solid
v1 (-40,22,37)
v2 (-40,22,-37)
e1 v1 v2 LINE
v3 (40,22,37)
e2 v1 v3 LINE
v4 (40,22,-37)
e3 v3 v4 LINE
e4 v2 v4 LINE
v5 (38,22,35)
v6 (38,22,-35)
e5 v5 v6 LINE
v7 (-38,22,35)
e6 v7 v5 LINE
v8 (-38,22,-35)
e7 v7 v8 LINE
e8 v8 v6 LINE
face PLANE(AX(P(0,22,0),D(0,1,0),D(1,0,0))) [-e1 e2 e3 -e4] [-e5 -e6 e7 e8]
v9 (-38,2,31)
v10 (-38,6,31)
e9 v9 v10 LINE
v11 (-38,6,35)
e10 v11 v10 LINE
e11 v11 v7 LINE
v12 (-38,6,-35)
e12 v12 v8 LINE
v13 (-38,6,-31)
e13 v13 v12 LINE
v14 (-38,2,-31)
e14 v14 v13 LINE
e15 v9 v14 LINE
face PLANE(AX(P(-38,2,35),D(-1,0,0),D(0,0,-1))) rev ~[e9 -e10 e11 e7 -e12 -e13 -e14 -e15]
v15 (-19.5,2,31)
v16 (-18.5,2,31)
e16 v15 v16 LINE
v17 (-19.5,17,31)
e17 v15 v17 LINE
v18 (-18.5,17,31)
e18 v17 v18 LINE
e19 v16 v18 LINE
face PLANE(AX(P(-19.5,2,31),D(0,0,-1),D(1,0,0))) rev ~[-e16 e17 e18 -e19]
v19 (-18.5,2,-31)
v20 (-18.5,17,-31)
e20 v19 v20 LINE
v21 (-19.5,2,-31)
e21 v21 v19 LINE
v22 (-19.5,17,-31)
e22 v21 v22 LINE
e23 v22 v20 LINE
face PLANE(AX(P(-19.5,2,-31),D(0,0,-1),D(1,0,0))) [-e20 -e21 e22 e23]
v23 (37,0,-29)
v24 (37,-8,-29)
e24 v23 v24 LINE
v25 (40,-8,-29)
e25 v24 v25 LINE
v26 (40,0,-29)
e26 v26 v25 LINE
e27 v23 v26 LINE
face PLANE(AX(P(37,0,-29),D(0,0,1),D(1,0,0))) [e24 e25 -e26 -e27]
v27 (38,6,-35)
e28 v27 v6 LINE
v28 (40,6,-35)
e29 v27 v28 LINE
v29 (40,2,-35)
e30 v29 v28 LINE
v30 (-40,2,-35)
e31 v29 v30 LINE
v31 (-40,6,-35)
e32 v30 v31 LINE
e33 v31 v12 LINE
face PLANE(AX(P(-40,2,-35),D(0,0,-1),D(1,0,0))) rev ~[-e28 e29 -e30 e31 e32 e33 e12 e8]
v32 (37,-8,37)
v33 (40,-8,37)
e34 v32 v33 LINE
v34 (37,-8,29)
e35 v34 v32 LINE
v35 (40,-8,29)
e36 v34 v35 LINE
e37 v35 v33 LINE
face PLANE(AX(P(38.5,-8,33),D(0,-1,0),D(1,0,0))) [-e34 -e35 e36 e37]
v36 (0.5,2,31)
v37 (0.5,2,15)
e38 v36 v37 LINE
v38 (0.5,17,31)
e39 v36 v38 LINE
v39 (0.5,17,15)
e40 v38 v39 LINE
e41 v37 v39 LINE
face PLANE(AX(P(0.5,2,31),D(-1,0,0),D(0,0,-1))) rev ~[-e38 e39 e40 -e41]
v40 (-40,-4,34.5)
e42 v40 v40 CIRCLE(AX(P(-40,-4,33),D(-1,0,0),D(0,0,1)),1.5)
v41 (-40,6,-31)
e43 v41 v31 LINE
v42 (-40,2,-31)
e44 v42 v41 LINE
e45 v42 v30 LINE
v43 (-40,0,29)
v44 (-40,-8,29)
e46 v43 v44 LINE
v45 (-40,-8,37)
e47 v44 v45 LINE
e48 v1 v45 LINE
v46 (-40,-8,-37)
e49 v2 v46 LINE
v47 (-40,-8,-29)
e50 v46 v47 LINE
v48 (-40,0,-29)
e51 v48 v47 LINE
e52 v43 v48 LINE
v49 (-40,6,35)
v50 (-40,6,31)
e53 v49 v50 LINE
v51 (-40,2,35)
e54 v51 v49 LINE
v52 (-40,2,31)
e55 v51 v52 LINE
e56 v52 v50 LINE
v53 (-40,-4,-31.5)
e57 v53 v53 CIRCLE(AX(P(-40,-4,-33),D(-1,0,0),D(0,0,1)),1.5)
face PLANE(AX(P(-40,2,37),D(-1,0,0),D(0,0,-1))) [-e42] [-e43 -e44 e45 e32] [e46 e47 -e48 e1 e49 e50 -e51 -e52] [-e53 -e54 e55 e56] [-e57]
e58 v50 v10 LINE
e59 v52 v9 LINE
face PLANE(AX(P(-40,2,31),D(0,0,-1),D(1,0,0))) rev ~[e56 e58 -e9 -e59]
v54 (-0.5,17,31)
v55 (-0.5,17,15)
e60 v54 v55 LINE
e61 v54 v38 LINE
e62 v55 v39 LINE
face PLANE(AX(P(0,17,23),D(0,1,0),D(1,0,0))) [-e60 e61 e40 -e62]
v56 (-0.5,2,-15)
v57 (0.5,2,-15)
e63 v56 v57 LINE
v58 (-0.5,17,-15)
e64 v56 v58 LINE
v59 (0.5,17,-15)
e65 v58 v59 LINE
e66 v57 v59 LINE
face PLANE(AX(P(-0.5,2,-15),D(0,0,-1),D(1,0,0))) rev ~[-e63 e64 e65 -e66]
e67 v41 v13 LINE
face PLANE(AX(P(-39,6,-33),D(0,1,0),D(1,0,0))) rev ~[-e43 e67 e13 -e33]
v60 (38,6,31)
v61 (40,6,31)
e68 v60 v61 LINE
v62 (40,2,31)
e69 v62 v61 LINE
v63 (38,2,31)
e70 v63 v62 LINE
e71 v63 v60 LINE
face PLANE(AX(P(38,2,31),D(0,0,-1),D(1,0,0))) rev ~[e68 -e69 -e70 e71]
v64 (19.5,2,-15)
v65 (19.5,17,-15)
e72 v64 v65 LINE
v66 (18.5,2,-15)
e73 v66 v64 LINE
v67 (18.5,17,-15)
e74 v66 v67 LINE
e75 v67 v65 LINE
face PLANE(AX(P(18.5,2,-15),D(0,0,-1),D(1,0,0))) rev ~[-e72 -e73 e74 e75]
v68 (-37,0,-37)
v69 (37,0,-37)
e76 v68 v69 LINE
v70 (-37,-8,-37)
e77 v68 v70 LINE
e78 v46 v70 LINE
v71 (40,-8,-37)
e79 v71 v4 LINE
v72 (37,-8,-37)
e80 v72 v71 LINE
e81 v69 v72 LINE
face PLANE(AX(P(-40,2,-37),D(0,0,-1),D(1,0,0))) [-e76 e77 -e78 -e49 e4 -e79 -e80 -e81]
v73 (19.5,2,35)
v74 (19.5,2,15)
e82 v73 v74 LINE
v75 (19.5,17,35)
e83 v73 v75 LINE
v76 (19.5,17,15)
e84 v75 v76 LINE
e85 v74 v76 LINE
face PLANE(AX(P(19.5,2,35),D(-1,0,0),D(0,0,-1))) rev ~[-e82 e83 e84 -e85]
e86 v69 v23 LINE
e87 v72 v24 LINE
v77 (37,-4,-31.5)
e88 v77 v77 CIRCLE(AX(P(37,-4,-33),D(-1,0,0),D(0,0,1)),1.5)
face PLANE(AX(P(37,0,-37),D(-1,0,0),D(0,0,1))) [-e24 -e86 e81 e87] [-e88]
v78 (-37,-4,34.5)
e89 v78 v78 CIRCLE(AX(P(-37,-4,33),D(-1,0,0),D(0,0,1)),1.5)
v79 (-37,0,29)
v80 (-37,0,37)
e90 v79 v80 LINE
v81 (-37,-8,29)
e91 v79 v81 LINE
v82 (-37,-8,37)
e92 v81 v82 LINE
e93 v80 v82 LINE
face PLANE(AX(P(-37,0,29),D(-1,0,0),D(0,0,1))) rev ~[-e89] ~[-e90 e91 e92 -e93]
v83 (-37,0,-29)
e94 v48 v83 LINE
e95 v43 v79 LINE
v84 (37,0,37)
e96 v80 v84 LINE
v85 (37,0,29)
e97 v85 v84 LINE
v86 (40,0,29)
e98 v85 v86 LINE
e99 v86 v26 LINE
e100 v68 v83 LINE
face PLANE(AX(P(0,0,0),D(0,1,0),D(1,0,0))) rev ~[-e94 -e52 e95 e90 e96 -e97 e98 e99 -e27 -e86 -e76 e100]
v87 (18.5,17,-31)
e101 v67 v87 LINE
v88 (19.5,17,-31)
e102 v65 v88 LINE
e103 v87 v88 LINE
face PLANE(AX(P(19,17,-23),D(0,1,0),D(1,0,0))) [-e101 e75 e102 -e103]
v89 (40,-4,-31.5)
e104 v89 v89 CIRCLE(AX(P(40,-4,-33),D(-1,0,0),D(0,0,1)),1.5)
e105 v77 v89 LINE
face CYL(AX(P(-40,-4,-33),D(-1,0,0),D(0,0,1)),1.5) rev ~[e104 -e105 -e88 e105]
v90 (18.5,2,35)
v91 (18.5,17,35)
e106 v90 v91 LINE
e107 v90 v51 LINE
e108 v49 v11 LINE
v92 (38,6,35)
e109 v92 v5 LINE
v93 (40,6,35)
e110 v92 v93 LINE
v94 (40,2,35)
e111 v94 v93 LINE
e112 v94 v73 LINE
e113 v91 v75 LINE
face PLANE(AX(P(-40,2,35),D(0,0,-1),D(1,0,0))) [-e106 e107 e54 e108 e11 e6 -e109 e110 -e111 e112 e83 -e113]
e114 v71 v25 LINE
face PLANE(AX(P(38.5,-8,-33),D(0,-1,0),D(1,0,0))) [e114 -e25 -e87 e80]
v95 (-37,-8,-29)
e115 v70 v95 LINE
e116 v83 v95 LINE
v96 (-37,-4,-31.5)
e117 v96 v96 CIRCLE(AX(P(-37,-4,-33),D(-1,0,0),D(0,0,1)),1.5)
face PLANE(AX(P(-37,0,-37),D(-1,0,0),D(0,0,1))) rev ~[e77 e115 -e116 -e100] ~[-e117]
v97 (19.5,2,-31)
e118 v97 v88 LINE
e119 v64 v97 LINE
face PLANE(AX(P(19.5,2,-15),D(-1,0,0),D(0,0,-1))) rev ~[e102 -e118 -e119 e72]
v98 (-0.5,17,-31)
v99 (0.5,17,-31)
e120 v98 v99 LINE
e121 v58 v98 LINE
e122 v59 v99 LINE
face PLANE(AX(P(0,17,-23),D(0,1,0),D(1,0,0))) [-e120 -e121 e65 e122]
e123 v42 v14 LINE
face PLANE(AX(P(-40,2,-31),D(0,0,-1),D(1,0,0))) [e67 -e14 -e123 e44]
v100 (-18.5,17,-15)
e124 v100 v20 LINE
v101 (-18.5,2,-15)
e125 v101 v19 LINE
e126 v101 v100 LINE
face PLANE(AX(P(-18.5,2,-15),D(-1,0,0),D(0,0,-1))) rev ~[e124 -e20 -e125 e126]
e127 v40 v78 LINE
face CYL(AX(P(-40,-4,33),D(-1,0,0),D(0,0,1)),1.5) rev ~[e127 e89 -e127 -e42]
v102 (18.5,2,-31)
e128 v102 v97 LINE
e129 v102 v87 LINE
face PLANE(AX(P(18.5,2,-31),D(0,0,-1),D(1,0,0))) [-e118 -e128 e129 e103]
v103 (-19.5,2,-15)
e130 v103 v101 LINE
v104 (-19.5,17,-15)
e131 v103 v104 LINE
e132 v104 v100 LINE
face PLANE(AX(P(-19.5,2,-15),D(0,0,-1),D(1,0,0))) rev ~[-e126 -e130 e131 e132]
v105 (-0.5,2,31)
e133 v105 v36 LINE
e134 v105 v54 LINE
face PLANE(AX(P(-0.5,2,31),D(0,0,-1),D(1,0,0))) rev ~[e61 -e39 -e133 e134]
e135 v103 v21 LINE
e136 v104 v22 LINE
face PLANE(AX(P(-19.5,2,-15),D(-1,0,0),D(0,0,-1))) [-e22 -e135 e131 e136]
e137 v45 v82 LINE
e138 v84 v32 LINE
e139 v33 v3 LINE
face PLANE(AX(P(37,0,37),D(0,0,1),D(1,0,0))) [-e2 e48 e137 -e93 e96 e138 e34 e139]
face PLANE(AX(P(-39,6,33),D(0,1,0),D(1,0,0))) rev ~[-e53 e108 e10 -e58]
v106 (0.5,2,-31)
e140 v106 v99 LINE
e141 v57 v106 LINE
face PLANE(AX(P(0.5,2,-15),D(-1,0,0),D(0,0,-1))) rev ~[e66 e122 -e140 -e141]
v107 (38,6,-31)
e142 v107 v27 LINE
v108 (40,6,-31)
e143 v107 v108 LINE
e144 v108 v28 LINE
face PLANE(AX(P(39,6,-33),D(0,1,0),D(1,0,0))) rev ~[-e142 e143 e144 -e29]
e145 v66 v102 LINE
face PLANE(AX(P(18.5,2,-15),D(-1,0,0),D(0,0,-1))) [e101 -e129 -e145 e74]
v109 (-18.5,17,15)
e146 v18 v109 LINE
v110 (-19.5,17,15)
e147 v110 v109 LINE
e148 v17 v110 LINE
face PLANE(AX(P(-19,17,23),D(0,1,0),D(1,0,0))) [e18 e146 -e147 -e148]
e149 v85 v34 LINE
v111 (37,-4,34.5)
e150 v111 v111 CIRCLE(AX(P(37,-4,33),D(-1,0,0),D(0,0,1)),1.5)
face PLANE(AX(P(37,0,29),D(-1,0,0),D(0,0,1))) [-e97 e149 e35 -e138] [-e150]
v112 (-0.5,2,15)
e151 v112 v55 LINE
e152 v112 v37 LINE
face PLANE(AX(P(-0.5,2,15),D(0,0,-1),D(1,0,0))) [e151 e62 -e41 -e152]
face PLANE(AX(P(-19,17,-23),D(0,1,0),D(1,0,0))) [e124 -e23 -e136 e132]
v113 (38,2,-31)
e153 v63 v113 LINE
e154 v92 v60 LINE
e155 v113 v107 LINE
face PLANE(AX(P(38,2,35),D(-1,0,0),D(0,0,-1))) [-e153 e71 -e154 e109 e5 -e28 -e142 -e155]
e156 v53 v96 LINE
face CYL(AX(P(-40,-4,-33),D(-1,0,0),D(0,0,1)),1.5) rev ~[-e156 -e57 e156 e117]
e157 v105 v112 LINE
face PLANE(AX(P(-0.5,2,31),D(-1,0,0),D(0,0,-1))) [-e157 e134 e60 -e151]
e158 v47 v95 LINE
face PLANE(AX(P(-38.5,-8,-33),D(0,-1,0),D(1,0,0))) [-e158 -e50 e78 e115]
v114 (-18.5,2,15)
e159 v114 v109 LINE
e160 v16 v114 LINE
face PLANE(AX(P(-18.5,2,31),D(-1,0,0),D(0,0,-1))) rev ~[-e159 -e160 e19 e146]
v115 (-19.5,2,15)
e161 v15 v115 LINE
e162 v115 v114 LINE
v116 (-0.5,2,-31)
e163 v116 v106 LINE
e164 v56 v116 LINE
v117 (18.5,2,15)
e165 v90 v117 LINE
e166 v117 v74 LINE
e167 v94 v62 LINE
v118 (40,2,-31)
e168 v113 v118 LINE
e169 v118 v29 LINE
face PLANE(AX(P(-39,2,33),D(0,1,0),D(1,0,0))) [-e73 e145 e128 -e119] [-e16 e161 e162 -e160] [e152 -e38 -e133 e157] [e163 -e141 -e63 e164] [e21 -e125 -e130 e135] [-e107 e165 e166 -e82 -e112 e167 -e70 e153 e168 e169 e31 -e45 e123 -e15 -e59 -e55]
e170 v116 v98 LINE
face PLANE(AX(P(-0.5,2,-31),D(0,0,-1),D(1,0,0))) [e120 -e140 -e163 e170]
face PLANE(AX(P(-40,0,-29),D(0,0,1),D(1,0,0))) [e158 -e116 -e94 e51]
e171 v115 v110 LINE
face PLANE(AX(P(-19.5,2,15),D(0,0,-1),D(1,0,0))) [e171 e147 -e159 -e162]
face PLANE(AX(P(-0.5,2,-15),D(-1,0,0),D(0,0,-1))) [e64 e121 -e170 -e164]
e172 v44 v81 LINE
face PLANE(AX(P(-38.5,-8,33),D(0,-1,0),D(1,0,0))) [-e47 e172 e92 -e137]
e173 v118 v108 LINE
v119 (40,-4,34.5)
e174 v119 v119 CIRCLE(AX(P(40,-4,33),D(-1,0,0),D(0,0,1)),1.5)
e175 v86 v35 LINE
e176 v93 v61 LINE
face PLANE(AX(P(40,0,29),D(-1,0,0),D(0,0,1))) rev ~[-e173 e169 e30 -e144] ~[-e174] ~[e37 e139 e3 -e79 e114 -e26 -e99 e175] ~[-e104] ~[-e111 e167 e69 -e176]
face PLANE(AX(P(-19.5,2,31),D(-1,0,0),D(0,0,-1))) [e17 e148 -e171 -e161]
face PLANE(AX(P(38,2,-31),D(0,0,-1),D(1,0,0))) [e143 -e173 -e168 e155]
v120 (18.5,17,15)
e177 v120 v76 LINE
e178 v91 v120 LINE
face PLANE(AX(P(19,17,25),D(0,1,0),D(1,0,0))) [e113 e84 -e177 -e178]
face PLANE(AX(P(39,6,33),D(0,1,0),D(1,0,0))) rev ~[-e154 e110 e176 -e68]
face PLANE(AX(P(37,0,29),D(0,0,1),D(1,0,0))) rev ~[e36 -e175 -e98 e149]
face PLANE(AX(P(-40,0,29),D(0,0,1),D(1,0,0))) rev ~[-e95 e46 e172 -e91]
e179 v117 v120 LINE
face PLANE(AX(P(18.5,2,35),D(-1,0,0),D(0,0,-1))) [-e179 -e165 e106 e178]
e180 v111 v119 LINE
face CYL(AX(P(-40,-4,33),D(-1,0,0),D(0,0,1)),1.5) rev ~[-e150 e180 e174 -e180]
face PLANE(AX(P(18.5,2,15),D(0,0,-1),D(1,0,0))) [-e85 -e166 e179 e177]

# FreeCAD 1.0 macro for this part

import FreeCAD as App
import Part
import Sketcher

V = App.Vector


def add_polygon(sketch, points):
    """Adds a closed chain of lines whose ends are joined by coincident constraints."""
    first, n = sketch.GeometryCount, len(points)
    for a, b in zip(points, points[1:] + points[:1]):
        sketch.addGeometry(Part.LineSegment(App.Vector(*a, 0), App.Vector(*b, 0)), False)
    for i in range(n):
        sketch.addConstraint(Sketcher.Constraint("Coincident", first + i, 2, first + (i + 1) % n, 1))

doc = App.newDocument("Part")
body = doc.addObject("PartDesign::Body", "Body")

# Sketch on XZ plane
sketch1 = doc.addObject("Sketcher::SketchObject", "Sketch")
body.addObject(sketch1)
sketch1.AttachmentSupport = (doc.XZ_Plane, [""])
sketch1.MapMode = "FlatFace"
add_polygon(sketch1, [(-40, -37), (-40, 37), (40, 37), (40, -37)])  # lines 0-3
sketch1.addConstraint(Sketcher.Constraint("Vertical", 0))
sketch1.addConstraint(Sketcher.Constraint("Horizontal", 1))
sketch1.addConstraint(Sketcher.Constraint("Vertical", 2))
sketch1.addConstraint(Sketcher.Constraint("Horizontal", 3))
sketch1.addConstraint(Sketcher.Constraint("Symmetric", 0, 2, 2, 2, -1, 1))
sketch1.addConstraint(Sketcher.Constraint("DistanceX", 1, 1, 1, 2, 80.0))
sketch1.addConstraint(Sketcher.Constraint("DistanceY", 0, 1, 0, 2, 74.0))
pad1 = doc.addObject("PartDesign::Pad", "Pad")
body.addObject(pad1)
pad1.Profile = sketch1
pad1.Length = 2
pad1.Reversed = True

# Sketch on XZ plane
sketch2 = doc.addObject("Sketcher::SketchObject", "Sketch001")
body.addObject(sketch2)
sketch2.AttachmentSupport = (doc.XZ_Plane, [""])
sketch2.MapMode = "FlatFace"
sketch2.AttachmentOffset = App.Placement(V(0, 0, -2), App.Rotation())
add_polygon(sketch2, [(-40, -37), (-40, 37), (40, 37), (40, -37)])  # lines 0-3
add_polygon(sketch2, [(38, 35), (-38, 35), (-38, -35), (38, -35)])  # lines 4-7
sketch2.addConstraint(Sketcher.Constraint("Vertical", 0))
sketch2.addConstraint(Sketcher.Constraint("Horizontal", 1))
sketch2.addConstraint(Sketcher.Constraint("Vertical", 2))
sketch2.addConstraint(Sketcher.Constraint("Horizontal", 3))
sketch2.addConstraint(Sketcher.Constraint("Horizontal", 4))
sketch2.addConstraint(Sketcher.Constraint("Vertical", 5))
sketch2.addConstraint(Sketcher.Constraint("Horizontal", 6))
sketch2.addConstraint(Sketcher.Constraint("Vertical", 7))
sketch2.addConstraint(Sketcher.Constraint("Symmetric", 0, 2, 2, 2, -1, 1))
sketch2.addConstraint(Sketcher.Constraint("Symmetric", 4, 2, 6, 2, -1, 1))
sketch2.addConstraint(Sketcher.Constraint("DistanceX", 1, 1, 1, 2, 80.0))
sketch2.addConstraint(Sketcher.Constraint("DistanceX", 4, 2, 4, 1, 76.0))
sketch2.addConstraint(Sketcher.Constraint("DistanceY", 0, 1, 0, 2, 74.0))
sketch2.addConstraint(Sketcher.Constraint("DistanceY", 5, 2, 5, 1, 70.0))
pad2 = doc.addObject("PartDesign::Pad", "Pad001")
body.addObject(pad2)
pad2.Profile = sketch2
pad2.Length = 20
pad2.Reversed = True

# Sketch on XZ plane
sketch3 = doc.addObject("Sketcher::SketchObject", "Sketch002")
body.addObject(sketch3)
sketch3.AttachmentSupport = (doc.XZ_Plane, [""])
sketch3.MapMode = "FlatFace"
sketch3.AttachmentOffset = App.Placement(V(0, 0, -2), App.Rotation())
add_polygon(sketch3, [(-40, -35), (-40, -31), (-38, -31), (-38, -35)])  # lines 0-3
add_polygon(sketch3, [(38, -35), (38, -31), (40, -31), (40, -35)])  # lines 4-7
add_polygon(sketch3, [(38, 31), (38, 35), (40, 35), (40, 31)])  # lines 8-11
add_polygon(sketch3, [(-40, 31), (-40, 35), (-38, 35), (-38, 31)])  # lines 12-15
sketch3.addConstraint(Sketcher.Constraint("Vertical", 0))
sketch3.addConstraint(Sketcher.Constraint("Horizontal", 1))
sketch3.addConstraint(Sketcher.Constraint("Vertical", 2))
sketch3.addConstraint(Sketcher.Constraint("Horizontal", 3))
sketch3.addConstraint(Sketcher.Constraint("Vertical", 4))
sketch3.addConstraint(Sketcher.Constraint("Horizontal", 5))
sketch3.addConstraint(Sketcher.Constraint("Vertical", 6))
sketch3.addConstraint(Sketcher.Constraint("Horizontal", 7))
sketch3.addConstraint(Sketcher.Constraint("Vertical", 8))
sketch3.addConstraint(Sketcher.Constraint("Horizontal", 9))
sketch3.addConstraint(Sketcher.Constraint("Vertical", 10))
sketch3.addConstraint(Sketcher.Constraint("Horizontal", 11))
sketch3.addConstraint(Sketcher.Constraint("Vertical", 12))
sketch3.addConstraint(Sketcher.Constraint("Horizontal", 13))
sketch3.addConstraint(Sketcher.Constraint("Vertical", 14))
sketch3.addConstraint(Sketcher.Constraint("Horizontal", 15))
sketch3.addConstraint(Sketcher.Constraint("Symmetric", 2, 2, 8, 2, -1, 1))
sketch3.addConstraint(Sketcher.Constraint("Symmetric", 0, 2, 10, 2, -1, 1))
sketch3.addConstraint(Sketcher.Constraint("Symmetric", 6, 2, 12, 2, -1, 1))
sketch3.addConstraint(Sketcher.Constraint("Symmetric", 4, 2, 14, 2, -1, 1))
sketch3.addConstraint(Sketcher.Constraint("Symmetric", 1, 2, 4, 2, -2))
sketch3.addConstraint(Sketcher.Constraint("Symmetric", 3, 2, 6, 2, -2))
sketch3.addConstraint(Sketcher.Constraint("DistanceX", 1, 1, 1, 2, 2.0))
sketch3.addConstraint(Sketcher.Constraint("DistanceY", 0, 1, 0, 2, 4.0))
sketch3.addConstraint(Sketcher.Constraint("DistanceX", 0, 2, -1, 1, 40.0))
sketch3.addConstraint(Sketcher.Constraint("DistanceY", 0, 2, -1, 1, 31.0))
pocket1 = doc.addObject("PartDesign::Pocket", "Pocket")
body.addObject(pocket1)
pocket1.Profile = sketch3
pocket1.Length = 4

# Sketch on XZ plane
sketch4 = doc.addObject("Sketcher::SketchObject", "Sketch003")
body.addObject(sketch4)
sketch4.AttachmentSupport = (doc.XZ_Plane, [""])
sketch4.MapMode = "FlatFace"
sketch4.AttachmentOffset = App.Placement(V(0, 0, -2), App.Rotation())
add_polygon(sketch4, [(-19.5, -31), (-19.5, -15), (-18.5, -15), (-18.5, -31)])  # lines 0-3
add_polygon(sketch4, [(-0.5, -31), (-0.5, -15), (0.5, -15), (0.5, -31)])  # lines 4-7
add_polygon(sketch4, [(18.5, -31), (18.5, -15), (19.5, -15), (19.5, -31)])  # lines 8-11
add_polygon(sketch4, [(-19.5, 15), (-19.5, 31), (-18.5, 31), (-18.5, 15)])  # lines 12-15
add_polygon(sketch4, [(-0.5, 15), (-0.5, 31), (0.5, 31), (0.5, 15)])  # lines 16-19
add_polygon(sketch4, [(18.5, 15), (18.5, 35), (19.5, 35), (19.5, 15)])  # lines 20-23
sketch4.addConstraint(Sketcher.Constraint("Vertical", 0))
sketch4.addConstraint(Sketcher.Constraint("Horizontal", 1))
sketch4.addConstraint(Sketcher.Constraint("Vertical", 2))
sketch4.addConstraint(Sketcher.Constraint("Horizontal", 3))
sketch4.addConstraint(Sketcher.Constraint("Vertical", 4))
sketch4.addConstraint(Sketcher.Constraint("Horizontal", 5))
sketch4.addConstraint(Sketcher.Constraint("Vertical", 6))
sketch4.addConstraint(Sketcher.Constraint("Horizontal", 7))
sketch4.addConstraint(Sketcher.Constraint("Vertical", 8))
sketch4.addConstraint(Sketcher.Constraint("Horizontal", 9))
sketch4.addConstraint(Sketcher.Constraint("Vertical", 10))
sketch4.addConstraint(Sketcher.Constraint("Horizontal", 11))
sketch4.addConstraint(Sketcher.Constraint("Vertical", 12))
sketch4.addConstraint(Sketcher.Constraint("Horizontal", 13))
sketch4.addConstraint(Sketcher.Constraint("Vertical", 14))
sketch4.addConstraint(Sketcher.Constraint("Horizontal", 15))
sketch4.addConstraint(Sketcher.Constraint("Vertical", 16))
sketch4.addConstraint(Sketcher.Constraint("Horizontal", 17))
sketch4.addConstraint(Sketcher.Constraint("Vertical", 18))
sketch4.addConstraint(Sketcher.Constraint("Horizontal", 19))
sketch4.addConstraint(Sketcher.Constraint("Vertical", 20))
sketch4.addConstraint(Sketcher.Constraint("Horizontal", 21))
sketch4.addConstraint(Sketcher.Constraint("Vertical", 22))
sketch4.addConstraint(Sketcher.Constraint("Horizontal", 23))
sketch4.addConstraint(Sketcher.Constraint("Symmetric", 10, 2, 12, 2, -1, 1))
sketch4.addConstraint(Sketcher.Constraint("Symmetric", 8, 2, 14, 2, -1, 1))
sketch4.addConstraint(Sketcher.Constraint("Symmetric", 6, 2, 16, 2, -1, 1))
sketch4.addConstraint(Sketcher.Constraint("Symmetric", 4, 2, 18, 2, -1, 1))
sketch4.addConstraint(Sketcher.Constraint("Symmetric", 0, 2, 22, 2, -1, 1))
sketch4.addConstraint(Sketcher.Constraint("Symmetric", 1, 2, 8, 2, -2))
sketch4.addConstraint(Sketcher.Constraint("Symmetric", 3, 2, 10, 2, -2))
sketch4.addConstraint(Sketcher.Constraint("Horizontal", 1, 2, 4, 2))
sketch4.addConstraint(Sketcher.Constraint("Horizontal", 3, 2, 6, 2))
sketch4.addConstraint(Sketcher.Constraint("Vertical", 7, 2, 16, 2))
sketch4.addConstraint(Sketcher.Constraint("Vertical", 11, 2, 20, 2))
sketch4.addConstraint(Sketcher.Constraint("Equal", 3, 5))
sketch4.addConstraint(Sketcher.Constraint("DistanceX", 1, 1, 1, 2, 1.0))
sketch4.addConstraint(Sketcher.Constraint("DistanceY", 0, 1, 0, 2, 16.0))
sketch4.addConstraint(Sketcher.Constraint("DistanceY", 20, 1, 20, 2, 20.0))
sketch4.addConstraint(Sketcher.Constraint("DistanceY", 0, 2, -1, 1, 15.0))
sketch4.addConstraint(Sketcher.Constraint("DistanceX", 1, 2, 4, 2, 18.0))
pad3 = doc.addObject("PartDesign::Pad", "Pad002")
body.addObject(pad3)
pad3.Profile = sketch4
pad3.Length = 15
pad3.Reversed = True

# Sketch on XZ plane
sketch5 = doc.addObject("Sketcher::SketchObject", "Sketch004")
body.addObject(sketch5)
sketch5.AttachmentSupport = (doc.XZ_Plane, [""])
sketch5.MapMode = "FlatFace"
add_polygon(sketch5, [(37, 37), (37, 29), (40, 29), (40, 37)])  # lines 0-3
add_polygon(sketch5, [(37, -29), (37, -37), (40, -37), (40, -29)])  # lines 4-7
add_polygon(sketch5, [(-40, -29), (-40, -37), (-37, -37), (-37, -29)])  # lines 8-11
add_polygon(sketch5, [(-40, 37), (-40, 29), (-37, 29), (-37, 37)])  # lines 12-15
sketch5.addConstraint(Sketcher.Constraint("Vertical", 0))
sketch5.addConstraint(Sketcher.Constraint("Horizontal", 1))
sketch5.addConstraint(Sketcher.Constraint("Vertical", 2))
sketch5.addConstraint(Sketcher.Constraint("Horizontal", 3))
sketch5.addConstraint(Sketcher.Constraint("Vertical", 4))
sketch5.addConstraint(Sketcher.Constraint("Horizontal", 5))
sketch5.addConstraint(Sketcher.Constraint("Vertical", 6))
sketch5.addConstraint(Sketcher.Constraint("Horizontal", 7))
sketch5.addConstraint(Sketcher.Constraint("Vertical", 8))
sketch5.addConstraint(Sketcher.Constraint("Horizontal", 9))
sketch5.addConstraint(Sketcher.Constraint("Vertical", 10))
sketch5.addConstraint(Sketcher.Constraint("Horizontal", 11))
sketch5.addConstraint(Sketcher.Constraint("Vertical", 12))
sketch5.addConstraint(Sketcher.Constraint("Horizontal", 13))
sketch5.addConstraint(Sketcher.Constraint("Vertical", 14))
sketch5.addConstraint(Sketcher.Constraint("Horizontal", 15))
sketch5.addConstraint(Sketcher.Constraint("Symmetric", 2, 2, 8, 2, -1, 1))
sketch5.addConstraint(Sketcher.Constraint("Symmetric", 0, 2, 10, 2, -1, 1))
sketch5.addConstraint(Sketcher.Constraint("Symmetric", 6, 2, 12, 2, -1, 1))
sketch5.addConstraint(Sketcher.Constraint("Symmetric", 4, 2, 14, 2, -1, 1))
sketch5.addConstraint(Sketcher.Constraint("Symmetric", 5, 2, 8, 2, -2))
sketch5.addConstraint(Sketcher.Constraint("Symmetric", 7, 2, 10, 2, -2))
sketch5.addConstraint(Sketcher.Constraint("DistanceX", 1, 1, 1, 2, 3.0))
sketch5.addConstraint(Sketcher.Constraint("DistanceY", 0, 2, 0, 1, 8.0))
sketch5.addConstraint(Sketcher.Constraint("DistanceX", -1, 1, 0, 2, 37.0))
sketch5.addConstraint(Sketcher.Constraint("DistanceY", -1, 1, 0, 2, 29.0))
pad4 = doc.addObject("PartDesign::Pad", "Pad003")
body.addObject(pad4)
pad4.Profile = sketch5
pad4.Length = 8

# Sketch on YZ plane
sketch6 = doc.addObject("Sketcher::SketchObject", "Sketch005")
body.addObject(sketch6)
sketch6.AttachmentSupport = (doc.YZ_Plane, [""])
sketch6.MapMode = "FlatFace"
sketch6.AttachmentOffset = App.Placement(V(0, 0, -40), App.Rotation())
sketch6.addGeometry(Part.Circle(V(-4, 33, 0), V(0, 0, 1), 1.5), False)
sketch6.addGeometry(Part.Circle(V(-4, -33, 0), V(0, 0, 1), 1.5), False)
sketch6.addConstraint(Sketcher.Constraint("Equal", 0, 1))
sketch6.addConstraint(Sketcher.Constraint("Symmetric", 0, 3, 1, 3, -1))
sketch6.addConstraint(Sketcher.Constraint("Diameter", 0, 3.0))
sketch6.addConstraint(Sketcher.Constraint("DistanceX", 0, 3, -1, 1, 4.0))
sketch6.addConstraint(Sketcher.Constraint("DistanceY", -1, 1, 0, 3, 33.0))
pocket2 = doc.addObject("PartDesign::Pocket", "Pocket001")
body.addObject(pocket2)
pocket2.Profile = sketch6
pocket2.Type = "ThroughAll"
pocket2.Reversed = True

doc.recompute()
